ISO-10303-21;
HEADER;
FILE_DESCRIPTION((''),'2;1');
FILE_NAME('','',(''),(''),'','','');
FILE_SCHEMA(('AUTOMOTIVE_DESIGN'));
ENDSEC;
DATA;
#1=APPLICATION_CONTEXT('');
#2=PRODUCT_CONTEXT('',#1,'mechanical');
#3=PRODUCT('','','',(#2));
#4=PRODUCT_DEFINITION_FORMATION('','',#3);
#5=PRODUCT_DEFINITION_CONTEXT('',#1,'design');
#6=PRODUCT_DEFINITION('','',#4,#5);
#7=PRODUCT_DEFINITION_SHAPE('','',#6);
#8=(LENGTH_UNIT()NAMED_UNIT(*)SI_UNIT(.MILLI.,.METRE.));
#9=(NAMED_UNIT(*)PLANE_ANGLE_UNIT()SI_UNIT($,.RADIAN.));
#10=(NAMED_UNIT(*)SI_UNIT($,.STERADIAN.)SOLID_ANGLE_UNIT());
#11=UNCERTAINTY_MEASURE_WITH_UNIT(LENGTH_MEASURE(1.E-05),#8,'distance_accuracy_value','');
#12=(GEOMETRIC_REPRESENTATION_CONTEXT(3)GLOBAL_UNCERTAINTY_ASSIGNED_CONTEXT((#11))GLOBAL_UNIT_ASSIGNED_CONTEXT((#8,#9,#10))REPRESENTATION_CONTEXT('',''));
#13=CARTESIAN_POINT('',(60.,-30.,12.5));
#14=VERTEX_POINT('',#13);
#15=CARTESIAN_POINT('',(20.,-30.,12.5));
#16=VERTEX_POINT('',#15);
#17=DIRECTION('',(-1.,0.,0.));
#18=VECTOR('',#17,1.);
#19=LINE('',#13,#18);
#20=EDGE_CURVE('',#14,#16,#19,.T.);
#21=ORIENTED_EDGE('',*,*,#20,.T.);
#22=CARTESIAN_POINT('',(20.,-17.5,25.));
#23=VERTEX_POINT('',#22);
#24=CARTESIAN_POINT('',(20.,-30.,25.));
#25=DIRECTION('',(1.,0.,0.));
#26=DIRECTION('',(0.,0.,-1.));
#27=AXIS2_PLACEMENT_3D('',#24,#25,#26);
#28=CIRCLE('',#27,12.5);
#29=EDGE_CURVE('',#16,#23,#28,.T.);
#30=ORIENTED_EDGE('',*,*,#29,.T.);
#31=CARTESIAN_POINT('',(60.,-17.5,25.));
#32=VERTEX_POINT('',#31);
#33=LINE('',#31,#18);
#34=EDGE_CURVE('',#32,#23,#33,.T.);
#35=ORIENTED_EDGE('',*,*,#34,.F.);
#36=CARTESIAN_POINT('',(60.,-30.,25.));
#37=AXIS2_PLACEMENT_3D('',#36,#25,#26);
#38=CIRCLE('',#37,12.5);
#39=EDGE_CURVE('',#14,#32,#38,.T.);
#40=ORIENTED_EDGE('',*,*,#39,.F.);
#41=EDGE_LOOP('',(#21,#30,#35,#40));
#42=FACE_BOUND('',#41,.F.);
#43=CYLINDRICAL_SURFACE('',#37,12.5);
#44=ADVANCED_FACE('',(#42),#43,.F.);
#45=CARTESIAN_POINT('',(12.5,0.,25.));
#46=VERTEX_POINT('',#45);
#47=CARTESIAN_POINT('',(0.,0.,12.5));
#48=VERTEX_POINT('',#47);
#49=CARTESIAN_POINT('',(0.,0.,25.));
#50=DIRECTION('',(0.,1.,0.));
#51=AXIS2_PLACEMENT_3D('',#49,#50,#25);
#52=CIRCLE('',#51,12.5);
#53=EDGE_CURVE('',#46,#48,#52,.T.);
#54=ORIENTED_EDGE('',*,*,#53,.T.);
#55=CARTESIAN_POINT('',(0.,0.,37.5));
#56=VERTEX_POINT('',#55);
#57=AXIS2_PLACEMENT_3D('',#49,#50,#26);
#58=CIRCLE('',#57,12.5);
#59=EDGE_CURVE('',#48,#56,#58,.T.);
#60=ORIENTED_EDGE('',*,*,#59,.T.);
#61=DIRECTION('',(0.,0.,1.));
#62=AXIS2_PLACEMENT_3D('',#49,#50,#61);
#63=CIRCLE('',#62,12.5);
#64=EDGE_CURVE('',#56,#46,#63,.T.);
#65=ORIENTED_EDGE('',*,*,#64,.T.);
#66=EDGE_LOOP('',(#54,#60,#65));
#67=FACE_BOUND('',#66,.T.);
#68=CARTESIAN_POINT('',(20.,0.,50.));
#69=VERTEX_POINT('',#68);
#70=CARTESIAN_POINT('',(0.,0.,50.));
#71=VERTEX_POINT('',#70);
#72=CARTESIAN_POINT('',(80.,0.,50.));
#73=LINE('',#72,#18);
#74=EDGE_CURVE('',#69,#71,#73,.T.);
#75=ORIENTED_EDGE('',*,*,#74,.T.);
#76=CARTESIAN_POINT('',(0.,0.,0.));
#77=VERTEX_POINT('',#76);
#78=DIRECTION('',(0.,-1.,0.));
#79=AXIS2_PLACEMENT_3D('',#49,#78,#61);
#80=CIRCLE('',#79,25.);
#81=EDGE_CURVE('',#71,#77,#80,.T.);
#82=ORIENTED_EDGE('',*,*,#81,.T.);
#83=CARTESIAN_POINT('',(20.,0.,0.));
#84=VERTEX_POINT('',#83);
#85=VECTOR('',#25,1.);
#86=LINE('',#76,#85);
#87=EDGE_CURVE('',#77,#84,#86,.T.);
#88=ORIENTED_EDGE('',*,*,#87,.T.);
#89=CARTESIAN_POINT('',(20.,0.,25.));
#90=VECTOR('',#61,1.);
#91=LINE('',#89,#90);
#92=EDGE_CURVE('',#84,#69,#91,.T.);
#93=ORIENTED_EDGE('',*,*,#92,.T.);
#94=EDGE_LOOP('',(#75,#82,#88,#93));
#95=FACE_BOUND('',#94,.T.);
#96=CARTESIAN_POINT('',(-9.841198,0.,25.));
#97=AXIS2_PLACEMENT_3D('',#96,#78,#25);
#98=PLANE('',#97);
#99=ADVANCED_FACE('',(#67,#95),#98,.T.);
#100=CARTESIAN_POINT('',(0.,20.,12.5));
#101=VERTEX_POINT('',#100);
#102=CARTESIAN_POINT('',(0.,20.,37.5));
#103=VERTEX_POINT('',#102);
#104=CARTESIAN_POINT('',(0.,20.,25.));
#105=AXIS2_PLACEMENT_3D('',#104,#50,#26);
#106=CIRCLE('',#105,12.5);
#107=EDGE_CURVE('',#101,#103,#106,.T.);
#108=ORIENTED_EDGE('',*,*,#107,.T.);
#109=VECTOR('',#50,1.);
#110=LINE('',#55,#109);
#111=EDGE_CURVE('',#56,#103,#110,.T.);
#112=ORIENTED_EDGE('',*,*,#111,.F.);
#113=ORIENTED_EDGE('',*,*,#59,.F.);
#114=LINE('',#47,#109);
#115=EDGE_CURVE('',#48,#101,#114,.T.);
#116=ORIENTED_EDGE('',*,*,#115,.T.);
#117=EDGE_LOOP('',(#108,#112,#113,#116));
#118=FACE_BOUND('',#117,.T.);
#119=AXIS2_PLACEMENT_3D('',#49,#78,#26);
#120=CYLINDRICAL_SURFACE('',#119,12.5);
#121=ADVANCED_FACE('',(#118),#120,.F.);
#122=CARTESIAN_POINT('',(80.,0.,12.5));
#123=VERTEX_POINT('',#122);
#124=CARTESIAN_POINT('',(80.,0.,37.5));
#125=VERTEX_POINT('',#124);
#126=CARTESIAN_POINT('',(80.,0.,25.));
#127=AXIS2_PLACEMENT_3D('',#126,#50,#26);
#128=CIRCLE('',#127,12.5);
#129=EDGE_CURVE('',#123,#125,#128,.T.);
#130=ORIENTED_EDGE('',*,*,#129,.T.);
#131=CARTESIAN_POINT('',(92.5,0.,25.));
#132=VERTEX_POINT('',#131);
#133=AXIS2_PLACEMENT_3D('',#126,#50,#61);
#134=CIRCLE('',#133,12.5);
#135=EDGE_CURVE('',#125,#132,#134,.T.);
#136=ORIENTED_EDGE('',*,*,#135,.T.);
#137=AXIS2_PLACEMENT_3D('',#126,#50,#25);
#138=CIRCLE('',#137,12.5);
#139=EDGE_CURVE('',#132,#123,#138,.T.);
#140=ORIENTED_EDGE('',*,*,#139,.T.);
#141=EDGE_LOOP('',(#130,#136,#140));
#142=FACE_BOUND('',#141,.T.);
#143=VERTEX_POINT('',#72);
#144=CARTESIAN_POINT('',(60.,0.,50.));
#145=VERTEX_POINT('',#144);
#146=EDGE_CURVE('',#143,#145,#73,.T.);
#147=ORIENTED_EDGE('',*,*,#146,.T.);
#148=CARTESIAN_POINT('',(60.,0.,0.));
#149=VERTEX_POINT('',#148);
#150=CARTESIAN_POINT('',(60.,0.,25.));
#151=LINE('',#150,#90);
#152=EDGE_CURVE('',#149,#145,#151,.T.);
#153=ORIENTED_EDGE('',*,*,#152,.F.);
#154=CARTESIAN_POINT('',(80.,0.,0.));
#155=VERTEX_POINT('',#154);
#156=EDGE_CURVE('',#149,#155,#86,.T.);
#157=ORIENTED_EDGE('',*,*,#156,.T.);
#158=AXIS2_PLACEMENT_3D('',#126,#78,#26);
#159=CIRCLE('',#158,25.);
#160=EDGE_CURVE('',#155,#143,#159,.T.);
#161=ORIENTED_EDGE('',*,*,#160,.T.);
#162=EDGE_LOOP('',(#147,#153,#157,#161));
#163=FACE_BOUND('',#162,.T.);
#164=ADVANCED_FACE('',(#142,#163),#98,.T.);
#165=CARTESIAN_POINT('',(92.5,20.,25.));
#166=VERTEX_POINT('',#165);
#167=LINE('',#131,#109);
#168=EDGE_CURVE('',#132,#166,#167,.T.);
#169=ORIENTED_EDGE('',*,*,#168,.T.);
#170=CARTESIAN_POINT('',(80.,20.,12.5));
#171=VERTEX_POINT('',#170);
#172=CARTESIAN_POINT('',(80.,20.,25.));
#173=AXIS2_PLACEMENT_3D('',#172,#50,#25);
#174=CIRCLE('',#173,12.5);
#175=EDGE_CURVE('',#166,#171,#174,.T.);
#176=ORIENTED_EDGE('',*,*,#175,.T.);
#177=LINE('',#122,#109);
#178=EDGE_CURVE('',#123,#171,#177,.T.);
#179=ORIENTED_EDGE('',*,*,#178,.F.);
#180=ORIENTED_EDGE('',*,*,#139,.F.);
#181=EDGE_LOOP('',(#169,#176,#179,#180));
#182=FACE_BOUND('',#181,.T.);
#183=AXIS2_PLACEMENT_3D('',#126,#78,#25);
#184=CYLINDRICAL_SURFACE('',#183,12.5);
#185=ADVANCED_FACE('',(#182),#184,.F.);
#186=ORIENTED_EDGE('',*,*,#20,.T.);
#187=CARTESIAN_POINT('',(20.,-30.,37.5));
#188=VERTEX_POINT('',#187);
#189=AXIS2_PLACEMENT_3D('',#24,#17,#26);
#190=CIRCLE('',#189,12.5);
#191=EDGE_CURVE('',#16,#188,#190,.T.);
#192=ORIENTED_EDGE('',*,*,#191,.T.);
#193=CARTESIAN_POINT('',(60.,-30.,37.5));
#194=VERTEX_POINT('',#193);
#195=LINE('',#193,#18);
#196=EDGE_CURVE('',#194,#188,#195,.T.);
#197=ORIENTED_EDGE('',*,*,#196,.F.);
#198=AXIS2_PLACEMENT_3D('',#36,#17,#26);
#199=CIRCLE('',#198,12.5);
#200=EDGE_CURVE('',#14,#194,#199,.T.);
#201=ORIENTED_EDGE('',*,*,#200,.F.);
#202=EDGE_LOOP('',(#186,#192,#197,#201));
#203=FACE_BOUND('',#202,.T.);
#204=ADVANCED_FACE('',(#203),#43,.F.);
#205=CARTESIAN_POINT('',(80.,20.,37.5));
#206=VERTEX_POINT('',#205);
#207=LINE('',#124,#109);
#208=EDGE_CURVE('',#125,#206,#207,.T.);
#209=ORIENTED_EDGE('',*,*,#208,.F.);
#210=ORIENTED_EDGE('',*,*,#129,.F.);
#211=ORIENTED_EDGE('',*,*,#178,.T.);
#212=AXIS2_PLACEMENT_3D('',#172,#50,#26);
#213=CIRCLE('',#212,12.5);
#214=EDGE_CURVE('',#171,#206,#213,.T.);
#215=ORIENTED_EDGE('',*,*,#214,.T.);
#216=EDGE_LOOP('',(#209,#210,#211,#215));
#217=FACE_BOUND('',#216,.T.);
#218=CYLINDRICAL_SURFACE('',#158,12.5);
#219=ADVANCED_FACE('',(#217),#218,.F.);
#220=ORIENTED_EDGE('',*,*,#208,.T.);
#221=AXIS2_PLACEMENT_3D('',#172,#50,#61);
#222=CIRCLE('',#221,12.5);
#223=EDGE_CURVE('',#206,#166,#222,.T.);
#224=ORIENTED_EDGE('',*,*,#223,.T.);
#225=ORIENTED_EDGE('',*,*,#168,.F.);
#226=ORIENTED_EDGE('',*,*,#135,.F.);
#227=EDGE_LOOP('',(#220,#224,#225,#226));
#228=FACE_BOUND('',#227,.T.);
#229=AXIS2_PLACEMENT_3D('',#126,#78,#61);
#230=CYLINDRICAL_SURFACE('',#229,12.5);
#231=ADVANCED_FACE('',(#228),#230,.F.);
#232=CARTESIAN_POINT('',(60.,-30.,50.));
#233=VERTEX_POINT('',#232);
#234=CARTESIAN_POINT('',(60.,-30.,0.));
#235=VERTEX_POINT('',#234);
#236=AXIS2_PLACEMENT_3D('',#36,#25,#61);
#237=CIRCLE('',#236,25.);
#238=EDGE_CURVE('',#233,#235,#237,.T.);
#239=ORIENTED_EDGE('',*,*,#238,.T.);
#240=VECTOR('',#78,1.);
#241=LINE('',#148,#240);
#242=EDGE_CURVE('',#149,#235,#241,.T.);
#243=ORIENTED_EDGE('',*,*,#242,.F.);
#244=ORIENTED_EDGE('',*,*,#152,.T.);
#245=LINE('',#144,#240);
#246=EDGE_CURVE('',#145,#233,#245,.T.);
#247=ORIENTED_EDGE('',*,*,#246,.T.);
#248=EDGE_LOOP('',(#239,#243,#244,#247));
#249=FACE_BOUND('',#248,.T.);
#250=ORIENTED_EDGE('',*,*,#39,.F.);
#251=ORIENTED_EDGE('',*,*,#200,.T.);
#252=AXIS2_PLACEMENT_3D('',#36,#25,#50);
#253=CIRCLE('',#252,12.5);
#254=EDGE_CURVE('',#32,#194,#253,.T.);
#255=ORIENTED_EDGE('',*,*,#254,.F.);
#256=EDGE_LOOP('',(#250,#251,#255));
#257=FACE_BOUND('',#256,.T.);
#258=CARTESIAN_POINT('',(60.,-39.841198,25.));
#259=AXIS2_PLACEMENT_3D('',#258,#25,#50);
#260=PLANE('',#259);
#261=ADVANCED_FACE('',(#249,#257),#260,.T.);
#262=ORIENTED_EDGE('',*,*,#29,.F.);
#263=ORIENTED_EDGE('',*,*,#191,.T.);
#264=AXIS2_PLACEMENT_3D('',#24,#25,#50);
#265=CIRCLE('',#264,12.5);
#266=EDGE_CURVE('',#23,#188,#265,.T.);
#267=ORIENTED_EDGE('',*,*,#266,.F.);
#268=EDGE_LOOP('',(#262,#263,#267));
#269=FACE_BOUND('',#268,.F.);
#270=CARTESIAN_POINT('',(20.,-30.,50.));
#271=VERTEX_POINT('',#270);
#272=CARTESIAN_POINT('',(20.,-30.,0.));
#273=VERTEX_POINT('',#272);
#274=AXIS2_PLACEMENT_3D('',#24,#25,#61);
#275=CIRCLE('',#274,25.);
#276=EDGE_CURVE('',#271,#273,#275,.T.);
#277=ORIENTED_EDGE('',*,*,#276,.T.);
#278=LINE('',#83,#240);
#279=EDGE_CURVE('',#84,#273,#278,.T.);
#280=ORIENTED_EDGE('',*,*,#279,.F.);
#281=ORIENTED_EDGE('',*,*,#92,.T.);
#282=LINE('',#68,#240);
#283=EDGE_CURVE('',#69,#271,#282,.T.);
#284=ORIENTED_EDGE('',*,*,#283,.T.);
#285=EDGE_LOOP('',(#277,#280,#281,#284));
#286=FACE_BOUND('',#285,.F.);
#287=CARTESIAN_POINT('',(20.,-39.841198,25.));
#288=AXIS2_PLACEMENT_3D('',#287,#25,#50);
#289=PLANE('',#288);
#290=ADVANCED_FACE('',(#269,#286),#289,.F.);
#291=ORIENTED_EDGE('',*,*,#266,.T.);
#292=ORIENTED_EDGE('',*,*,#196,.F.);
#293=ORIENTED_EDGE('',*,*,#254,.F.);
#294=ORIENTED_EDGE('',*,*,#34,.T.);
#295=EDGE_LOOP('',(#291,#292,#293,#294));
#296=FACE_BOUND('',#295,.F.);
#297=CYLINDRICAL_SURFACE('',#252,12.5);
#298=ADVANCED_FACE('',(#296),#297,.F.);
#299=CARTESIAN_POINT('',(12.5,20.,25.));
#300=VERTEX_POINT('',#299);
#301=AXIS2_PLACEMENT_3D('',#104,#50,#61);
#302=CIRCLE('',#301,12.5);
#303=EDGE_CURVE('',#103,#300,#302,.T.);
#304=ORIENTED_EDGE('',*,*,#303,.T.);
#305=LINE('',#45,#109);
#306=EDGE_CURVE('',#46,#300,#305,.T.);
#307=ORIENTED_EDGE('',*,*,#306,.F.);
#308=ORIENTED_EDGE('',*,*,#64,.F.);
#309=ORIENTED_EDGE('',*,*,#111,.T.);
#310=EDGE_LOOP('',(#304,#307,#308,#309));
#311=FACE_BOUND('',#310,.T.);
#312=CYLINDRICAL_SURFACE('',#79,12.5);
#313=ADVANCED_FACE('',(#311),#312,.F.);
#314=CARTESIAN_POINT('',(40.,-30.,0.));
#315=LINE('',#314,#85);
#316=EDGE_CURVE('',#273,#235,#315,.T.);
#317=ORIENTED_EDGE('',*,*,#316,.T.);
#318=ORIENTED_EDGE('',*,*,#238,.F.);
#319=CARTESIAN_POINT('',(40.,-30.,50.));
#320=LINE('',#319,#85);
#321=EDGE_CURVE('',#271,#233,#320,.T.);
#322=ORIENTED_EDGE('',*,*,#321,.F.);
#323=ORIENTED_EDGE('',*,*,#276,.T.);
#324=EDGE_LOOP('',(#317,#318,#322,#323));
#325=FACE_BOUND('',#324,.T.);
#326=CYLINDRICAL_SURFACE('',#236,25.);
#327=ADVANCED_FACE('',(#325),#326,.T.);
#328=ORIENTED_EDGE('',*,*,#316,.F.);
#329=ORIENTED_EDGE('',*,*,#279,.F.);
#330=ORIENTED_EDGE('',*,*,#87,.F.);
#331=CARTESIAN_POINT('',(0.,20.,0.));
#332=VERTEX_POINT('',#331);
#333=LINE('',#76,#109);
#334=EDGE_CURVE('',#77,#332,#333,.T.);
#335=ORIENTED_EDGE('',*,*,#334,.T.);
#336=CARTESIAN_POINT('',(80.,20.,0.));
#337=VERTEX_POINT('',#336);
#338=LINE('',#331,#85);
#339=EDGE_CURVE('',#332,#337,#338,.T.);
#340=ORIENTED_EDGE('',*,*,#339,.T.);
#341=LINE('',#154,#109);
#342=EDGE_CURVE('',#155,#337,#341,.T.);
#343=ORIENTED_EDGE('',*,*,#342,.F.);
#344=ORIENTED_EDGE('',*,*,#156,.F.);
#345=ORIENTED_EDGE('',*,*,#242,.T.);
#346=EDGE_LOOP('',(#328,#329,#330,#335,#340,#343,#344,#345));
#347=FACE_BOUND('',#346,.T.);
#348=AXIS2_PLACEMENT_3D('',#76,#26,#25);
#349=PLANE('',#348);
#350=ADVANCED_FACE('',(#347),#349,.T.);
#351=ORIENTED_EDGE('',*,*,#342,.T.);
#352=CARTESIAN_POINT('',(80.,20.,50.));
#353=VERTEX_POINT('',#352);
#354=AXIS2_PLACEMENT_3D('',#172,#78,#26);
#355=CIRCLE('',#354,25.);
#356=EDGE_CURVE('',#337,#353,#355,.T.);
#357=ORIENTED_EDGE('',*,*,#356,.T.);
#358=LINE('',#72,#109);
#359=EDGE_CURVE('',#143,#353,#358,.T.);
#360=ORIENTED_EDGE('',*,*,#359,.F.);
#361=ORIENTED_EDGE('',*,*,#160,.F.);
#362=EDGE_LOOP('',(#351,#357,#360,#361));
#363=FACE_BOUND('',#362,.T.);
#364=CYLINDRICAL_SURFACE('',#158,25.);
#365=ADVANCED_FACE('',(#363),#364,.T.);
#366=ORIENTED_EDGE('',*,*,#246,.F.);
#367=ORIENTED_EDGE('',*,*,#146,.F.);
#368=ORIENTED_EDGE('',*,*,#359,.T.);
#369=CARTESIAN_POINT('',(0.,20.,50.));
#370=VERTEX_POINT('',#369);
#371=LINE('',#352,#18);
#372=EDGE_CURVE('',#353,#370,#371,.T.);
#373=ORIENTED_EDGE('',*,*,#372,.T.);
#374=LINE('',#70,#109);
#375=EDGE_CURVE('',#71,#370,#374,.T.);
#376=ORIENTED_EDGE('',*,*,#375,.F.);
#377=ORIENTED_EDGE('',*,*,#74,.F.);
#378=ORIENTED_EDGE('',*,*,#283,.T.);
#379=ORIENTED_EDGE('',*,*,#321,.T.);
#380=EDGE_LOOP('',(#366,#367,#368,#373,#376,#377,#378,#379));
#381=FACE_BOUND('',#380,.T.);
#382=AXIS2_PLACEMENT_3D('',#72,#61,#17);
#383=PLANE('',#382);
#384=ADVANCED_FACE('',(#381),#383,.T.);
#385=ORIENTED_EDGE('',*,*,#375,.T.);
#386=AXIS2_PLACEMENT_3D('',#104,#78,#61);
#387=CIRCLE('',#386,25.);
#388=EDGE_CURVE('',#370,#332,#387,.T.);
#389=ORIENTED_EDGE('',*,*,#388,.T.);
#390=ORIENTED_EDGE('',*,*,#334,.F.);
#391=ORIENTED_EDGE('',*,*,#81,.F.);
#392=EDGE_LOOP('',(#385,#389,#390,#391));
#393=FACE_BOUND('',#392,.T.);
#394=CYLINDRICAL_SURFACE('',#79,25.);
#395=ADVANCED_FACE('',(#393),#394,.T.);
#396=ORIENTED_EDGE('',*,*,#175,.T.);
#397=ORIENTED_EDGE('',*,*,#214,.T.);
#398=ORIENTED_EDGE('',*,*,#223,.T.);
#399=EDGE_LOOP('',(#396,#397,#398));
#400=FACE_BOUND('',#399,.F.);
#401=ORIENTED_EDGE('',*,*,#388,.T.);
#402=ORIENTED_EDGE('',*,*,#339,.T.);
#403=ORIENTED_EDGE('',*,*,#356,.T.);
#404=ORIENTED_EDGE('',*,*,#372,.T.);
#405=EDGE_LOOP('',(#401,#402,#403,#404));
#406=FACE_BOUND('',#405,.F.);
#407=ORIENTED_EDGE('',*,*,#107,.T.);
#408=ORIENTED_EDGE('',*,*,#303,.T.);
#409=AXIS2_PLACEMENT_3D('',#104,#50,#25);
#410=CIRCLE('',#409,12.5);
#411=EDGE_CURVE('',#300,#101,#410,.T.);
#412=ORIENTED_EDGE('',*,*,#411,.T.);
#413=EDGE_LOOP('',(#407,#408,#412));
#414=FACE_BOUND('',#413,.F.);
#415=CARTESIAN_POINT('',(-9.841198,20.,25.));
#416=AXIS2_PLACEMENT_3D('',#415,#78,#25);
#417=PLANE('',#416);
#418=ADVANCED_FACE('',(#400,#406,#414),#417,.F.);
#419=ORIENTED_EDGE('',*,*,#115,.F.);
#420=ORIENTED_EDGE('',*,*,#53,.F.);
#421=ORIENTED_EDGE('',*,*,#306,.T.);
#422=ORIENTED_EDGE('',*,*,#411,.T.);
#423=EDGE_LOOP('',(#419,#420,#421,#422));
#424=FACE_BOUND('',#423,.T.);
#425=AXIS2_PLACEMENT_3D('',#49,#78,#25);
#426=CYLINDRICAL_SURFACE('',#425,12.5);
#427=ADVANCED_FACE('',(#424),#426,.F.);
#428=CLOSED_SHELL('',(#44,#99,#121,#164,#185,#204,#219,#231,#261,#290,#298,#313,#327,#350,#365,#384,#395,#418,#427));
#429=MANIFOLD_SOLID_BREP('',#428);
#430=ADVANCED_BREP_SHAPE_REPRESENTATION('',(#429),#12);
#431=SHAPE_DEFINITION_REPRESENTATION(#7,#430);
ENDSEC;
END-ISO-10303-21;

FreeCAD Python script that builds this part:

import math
import FreeCAD as App
import Part
import Sketcher
from FreeCAD import Vector
Q = App.Units.Quantity


def add_polygon(sketch, points):
    """Adds a closed chain of lines whose ends are joined by coincident constraints."""
    first, n = sketch.GeometryCount, len(points)
    for a, b in zip(points, points[1:] + points[:1]):
        sketch.addGeometry(Part.LineSegment(App.Vector(*a, 0), App.Vector(*b, 0)), False)
    for i in range(n):
        sketch.addConstraint(Sketcher.Constraint("Coincident", first + i, 2, first + (i + 1) % n, 1))

doc = App.newDocument("Part")
body = doc.addObject("PartDesign::Body", "Body")

sketch1 = body.newObject("Sketcher::SketchObject", "Sketch")
sketch1.AttachmentSupport = (doc.getObject("XZ_Plane"), [""])
sketch1.MapMode = "FlatFace"
sketch1.addGeometry([
    Part.ArcOfCircle(Part.Circle(Vector(0, 25, 0), Vector(0, 0, 1), 25), math.radians(90), math.radians(270)),
    Part.LineSegment(Vector(0, 0, 0), Vector(80, 0, 0)),
    Part.ArcOfCircle(Part.Circle(Vector(80, 25, 0), Vector(0, 0, 1), 25), math.radians(-90), math.radians(90)),
    Part.LineSegment(Vector(80, 50, 0), Vector(0, 50, 0)),
    Part.ArcOfCircle(Part.Circle(Vector(80, 25, 0), Vector(0, 0, 1), 12), math.radians(90), math.radians(270)),
    Part.ArcOfCircle(Part.Circle(Vector(80, 25, 0), Vector(0, 0, 1), 12), math.radians(0), math.radians(90)),
    Part.ArcOfCircle(Part.Circle(Vector(80, 25, 0), Vector(0, 0, 1), 12), math.radians(-90), math.radians(0)),
    Part.ArcOfCircle(Part.Circle(Vector(0, 25, 0), Vector(0, 0, 1), 12), math.radians(90), math.radians(270)),
    Part.ArcOfCircle(Part.Circle(Vector(0, 25, 0), Vector(0, 0, 1), 12), math.radians(0), math.radians(90)),
    Part.ArcOfCircle(Part.Circle(Vector(0, 25, 0), Vector(0, 0, 1), 12), math.radians(-90), math.radians(0)),
], False)
sketch1.addConstraint([
    Sketcher.Constraint("Tangent", 0, 2, 1, 1),
    Sketcher.Constraint("Tangent", 1, 2, 2, 1),
    Sketcher.Constraint("Tangent", 2, 2, 3, 1),
    Sketcher.Constraint("Tangent", 3, 2, 0, 1),
    Sketcher.Constraint("Tangent", 4, 1, 5, 2),
    Sketcher.Constraint("Tangent", 5, 1, 6, 2),
    Sketcher.Constraint("Tangent", 6, 1, 4, 2),
    Sketcher.Constraint("Tangent", 7, 1, 8, 2),
    Sketcher.Constraint("Tangent", 8, 1, 9, 2),
    Sketcher.Constraint("Tangent", 9, 1, 7, 2),
    Sketcher.Constraint("Horizontal", 1),
    Sketcher.Constraint("Horizontal", 3),
    Sketcher.Constraint("Coincident", 0, 2, -1, 1),
    Sketcher.Constraint("Coincident", 4, 3, 2, 3),
    Sketcher.Constraint("Coincident", 7, 3, 0, 3),
    Sketcher.Constraint("Equal", 6, 7),
    Sketcher.Constraint("PointOnObject", 7, 1, -2),
    Sketcher.Constraint("PointOnObject", 9, 1, -2),
    Sketcher.Constraint("Horizontal", 9, 3, 5, 1),
    Sketcher.Constraint("Horizontal", 5, 1, 8, 1),
    Sketcher.Constraint("Vertical", 2, 2, 4, 1),
    Sketcher.Constraint("Vertical", 4, 1, 6, 1),
    Sketcher.Constraint("Radius", 0, Q("25 mm")),
    Sketcher.Constraint("Radius", 4, Q("12.5 mm")),
    Sketcher.Constraint("DistanceX", 1, 1, 1, 2, Q("80 mm")),
])
pad1 = body.newObject("PartDesign::Pad", "Pad")
pad1.Profile = sketch1
pad1.Length = 20
pad1.Reversed = True

sketch2 = body.newObject("Sketcher::SketchObject", "Sketch001")
sketch2.AttachmentSupport = (doc.getObject("XZ_Plane"), [""])
sketch2.MapMode = "FlatFace"
add_polygon(sketch2, [(20, 50), (20, 0), (60, 0), (60, 50)])
sketch2.addConstraint([
    Sketcher.Constraint("Vertical", 0),
    Sketcher.Constraint("Horizontal", 1),
    Sketcher.Constraint("Vertical", 2),
    Sketcher.Constraint("Horizontal", 3),
    Sketcher.Constraint("PointOnObject", 0, 2, -1),
    Sketcher.Constraint("DistanceX", 1, 1, 1, 2, Q("40 mm")),
    Sketcher.Constraint("DistanceY", 0, 2, 0, 1, Q("50 mm")),
    Sketcher.Constraint("DistanceX", -1, 1, 0, 2, Q("20 mm")),
])
pad2 = body.newObject("PartDesign::Pad", "Pad001")
pad2.Profile = sketch2
pad2.Length = 30

sketch3 = body.newObject("Sketcher::SketchObject", "Sketch002")
sketch3.AttachmentSupport = (doc.getObject("YZ_Plane"), [""])
sketch3.MapMode = "FlatFace"
sketch3.AttachmentOffset = App.Placement(Vector(0, 0, 60), App.Rotation())
sketch3.addGeometry([
    Part.LineSegment(Vector(-30, 38, 0), Vector(-30, 50, 0)),
    Part.ArcOfCircle(Part.Circle(Vector(-30, 25, 0), Vector(0, 0, 1), 25), math.radians(90), math.radians(270)),
    Part.LineSegment(Vector(-30, 0, 0), Vector(-30, 12, 0)),
    Part.ArcOfCircle(Part.Circle(Vector(-30, 25, 0), Vector(0, 0, 1), 12), math.radians(90), math.radians(270)),
], False)
sketch3.addConstraint([
    Sketcher.Constraint("Coincident", 0, 2, 1, 1),
    Sketcher.Constraint("Coincident", 1, 2, 2, 1),
    Sketcher.Constraint("Coincident", 2, 2, 3, 2),
    Sketcher.Constraint("Coincident", 3, 1, 0, 1),
    Sketcher.Constraint("Vertical", 0),
    Sketcher.Constraint("Vertical", 2),
    Sketcher.Constraint("Coincident", 3, 3, 1, 3),
    Sketcher.Constraint("PointOnObject", 1, 2, -1),
    Sketcher.Constraint("Vertical", 3, 3, 0, 2),
    Sketcher.Constraint("Vertical", 0, 2, 1, 2),
    Sketcher.Constraint("Radius", 1, Q("25 mm")),
    Sketcher.Constraint("Radius", 3, Q("12.5 mm")),
    Sketcher.Constraint("DistanceX", 1, 3, -1, 1, Q("30 mm")),
])
pad3 = body.newObject("PartDesign::Pad", "Pad002")
pad3.Profile = sketch3
pad3.Length = 40
pad3.Reversed = True

sketch4 = body.newObject("Sketcher::SketchObject", "Sketch003")
sketch4.AttachmentSupport = (doc.getObject("YZ_Plane"), [""])
sketch4.MapMode = "FlatFace"
sketch4.AttachmentOffset = App.Placement(Vector(0, 0, 60), App.Rotation())
sketch4.addGeometry([
    Part.ArcOfCircle(Part.Circle(Vector(-30, 25, 0), Vector(0, 0, 1), 12), math.radians(0), math.radians(90)),
    Part.LineSegment(Vector(-30, 38, 0), Vector(-30, 12, 0)),
    Part.ArcOfCircle(Part.Circle(Vector(-30, 25, 0), Vector(0, 0, 1), 12), math.radians(-90), math.radians(0)),
], False)
sketch4.addConstraint([
    Sketcher.Constraint("Coincident", 0, 2, 1, 1),
    Sketcher.Constraint("Coincident", 1, 2, 2, 1),
    Sketcher.Constraint("Tangent", 2, 2, 0, 1),
    Sketcher.Constraint("Vertical", 1),
    Sketcher.Constraint("Equal", 0, 2),
    Sketcher.Constraint("Horizontal", 0, 3, 2, 2),
    Sketcher.Constraint("Vertical", 2, 3, 0, 2),
    Sketcher.Constraint("Radius", 0, Q("12.5 mm")),
    Sketcher.Constraint("DistanceX", 0, 3, -1, 1, Q("30 mm")),
    Sketcher.Constraint("DistanceY", -1, 1, 0, 3, Q("25 mm")),
])
pocket1 = body.newObject("PartDesign::Pocket", "Pocket")
pocket1.Profile = sketch4
pocket1.Length = 40

doc.recompute()
